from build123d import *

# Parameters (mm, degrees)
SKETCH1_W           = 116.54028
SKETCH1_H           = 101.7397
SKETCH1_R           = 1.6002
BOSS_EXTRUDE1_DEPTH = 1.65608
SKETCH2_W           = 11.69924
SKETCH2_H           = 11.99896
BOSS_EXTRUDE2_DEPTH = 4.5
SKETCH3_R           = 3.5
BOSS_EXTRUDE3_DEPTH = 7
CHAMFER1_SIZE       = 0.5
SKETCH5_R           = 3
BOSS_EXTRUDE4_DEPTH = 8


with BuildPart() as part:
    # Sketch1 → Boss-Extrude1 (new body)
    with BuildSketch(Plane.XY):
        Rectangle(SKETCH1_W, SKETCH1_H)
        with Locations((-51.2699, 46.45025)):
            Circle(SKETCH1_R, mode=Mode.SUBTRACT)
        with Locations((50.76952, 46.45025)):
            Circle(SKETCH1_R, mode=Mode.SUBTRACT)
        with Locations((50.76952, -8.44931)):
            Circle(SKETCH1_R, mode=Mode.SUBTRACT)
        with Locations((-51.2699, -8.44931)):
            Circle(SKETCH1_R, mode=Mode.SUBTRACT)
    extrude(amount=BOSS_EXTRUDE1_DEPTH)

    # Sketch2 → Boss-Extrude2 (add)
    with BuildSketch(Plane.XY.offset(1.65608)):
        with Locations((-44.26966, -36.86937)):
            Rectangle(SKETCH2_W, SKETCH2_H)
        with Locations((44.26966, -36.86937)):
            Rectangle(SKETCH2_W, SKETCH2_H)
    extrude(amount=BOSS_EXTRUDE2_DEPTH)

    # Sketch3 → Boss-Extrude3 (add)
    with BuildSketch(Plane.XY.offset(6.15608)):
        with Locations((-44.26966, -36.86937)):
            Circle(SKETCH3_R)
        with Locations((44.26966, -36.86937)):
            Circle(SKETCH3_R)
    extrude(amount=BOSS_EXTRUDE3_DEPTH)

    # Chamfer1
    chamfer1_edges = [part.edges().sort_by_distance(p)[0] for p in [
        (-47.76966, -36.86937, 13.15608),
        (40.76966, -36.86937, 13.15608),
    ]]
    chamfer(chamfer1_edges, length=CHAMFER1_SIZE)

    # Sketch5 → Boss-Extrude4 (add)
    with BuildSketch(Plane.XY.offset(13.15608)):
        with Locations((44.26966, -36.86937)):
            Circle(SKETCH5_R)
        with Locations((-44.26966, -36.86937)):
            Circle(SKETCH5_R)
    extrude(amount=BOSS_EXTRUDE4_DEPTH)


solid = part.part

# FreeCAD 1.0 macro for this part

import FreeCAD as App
import Part
import Sketcher


def edges_at(feature, points):
    """Names of the edges that pass closest to the given points."""
    edges = feature.Shape.Edges
    near = lambda p: min(range(len(edges)), key=lambda i: edges[i].distToShape(Part.Vertex(*p))[0])
    return sorted({f"Edge{near(p) + 1}" for p in points})

doc = App.newDocument("Part")
params = doc.addObject("Spreadsheet::Sheet", "Params")
for row, (alias, value) in enumerate([
    ("pad1_length", "1.65608 mm"),
    ("pad2_length", "4.5 mm"),
    ("sketch3_diameter", "7 mm"),
    ("pad3_length", "7 mm"),
    ("chamfer_size", "0.5 mm"),
    ("sketch4_diameter", "6 mm"),
    ("pad4_length", "8 mm"),
], start=1):
    params.set(f"A{row}", alias)
    params.set(f"B{row}", "=" + value)
    params.setAlias(f"B{row}", alias)

body = doc.addObject("PartDesign::Body", "Body")

sketch1 = doc.addObject("Sketcher::SketchObject", "Sketch")
body.addObject(sketch1)
sketch1.AttachmentSupport = (doc.XY_Plane, [""])
sketch1.MapMode = "FlatFace"
sketch1.addGeometry([
    Part.LineSegment(App.Vector(-58.27014, 50.86985, 0), App.Vector(-58.27014, -50.86985, 0)),
    Part.LineSegment(App.Vector(-58.27014, -50.86985, 0), App.Vector(58.27014, -50.86985, 0)),
    Part.LineSegment(App.Vector(58.27014, -50.86985, 0), App.Vector(58.27014, 50.86985, 0)),
    Part.LineSegment(App.Vector(58.27014, 50.86985, 0), App.Vector(-58.27014, 50.86985, 0)),
    Part.Circle(App.Vector(-51.2699, -8.44931, 0), App.Vector(0, 0, 1), 1.6002),
    Part.Circle(App.Vector(50.76952, -8.44931, 0), App.Vector(0, 0, 1), 1.6002),
    Part.Circle(App.Vector(-51.2699, 46.45025, 0), App.Vector(0, 0, 1), 1.6002),
    Part.Circle(App.Vector(50.76952, 46.45025, 0), App.Vector(0, 0, 1), 1.6002),
], False)
sketch1.addConstraint([
    Sketcher.Constraint("Coincident", 0, 2, 1, 1),
    Sketcher.Constraint("Coincident", 1, 2, 2, 1),
    Sketcher.Constraint("Coincident", 2, 2, 3, 1),
    Sketcher.Constraint("Coincident", 3, 2, 0, 1),
    Sketcher.Constraint("Vertical", 0),
    Sketcher.Constraint("Horizontal", 1),
    Sketcher.Constraint("Vertical", 2),
    Sketcher.Constraint("Horizontal", 3),
    Sketcher.Constraint("Equal", 4, 5),
    Sketcher.Constraint("Equal", 5, 6),
    Sketcher.Constraint("Equal", 6, 7),
    Sketcher.Constraint("Symmetric", 0, 2, 2, 2, -1, 1),
    Sketcher.Constraint("Horizontal", 4, 3, 5, 3),
    Sketcher.Constraint("Horizontal", 6, 3, 7, 3),
    Sketcher.Constraint("Vertical", 4, 3, 6, 3),
    Sketcher.Constraint("Vertical", 5, 3, 7, 3),
    Sketcher.Constraint("Diameter", 4, 3.2004),
    Sketcher.Constraint("DistanceY", 0, 2, 0, 1, 101.7397),
    Sketcher.Constraint("DistanceX", 1, 1, 1, 2, 116.54028),
    Sketcher.Constraint("DistanceX", 4, 3, -1, 1, 51.2699),
    Sketcher.Constraint("DistanceY", 0, 2, 6, 3, 97.3201),
    Sketcher.Constraint("DistanceY", 4, 3, -1, 1, 8.44931),
    Sketcher.Constraint("DistanceX", -1, 1, 5, 3, 50.76952),
])
pad1 = doc.addObject("PartDesign::Pad", "Pad")
body.addObject(pad1)
pad1.Profile = sketch1
pad1.setExpression("Length", "Params.pad1_length")

sketch2 = doc.addObject("Sketcher::SketchObject", "Sketch001")
body.addObject(sketch2)
sketch2.AttachmentSupport = (doc.XY_Plane, [""])
sketch2.MapMode = "FlatFace"
sketch2.AttachmentOffset = App.Placement(App.Vector(0, 0, 1.65608), App.Rotation())
sketch2.addGeometry([
    Part.LineSegment(App.Vector(-50.11928, -30.86989, 0), App.Vector(-50.11928, -42.86885, 0)),
    Part.LineSegment(App.Vector(-50.11928, -42.86885, 0), App.Vector(-38.42004, -42.86885, 0)),
    Part.LineSegment(App.Vector(-38.42004, -42.86885, 0), App.Vector(-38.42004, -30.86989, 0)),
    Part.LineSegment(App.Vector(-38.42004, -30.86989, 0), App.Vector(-50.11928, -30.86989, 0)),
    Part.LineSegment(App.Vector(38.42004, -30.86989, 0), App.Vector(38.42004, -42.86885, 0)),
    Part.LineSegment(App.Vector(38.42004, -42.86885, 0), App.Vector(50.11928, -42.86885, 0)),
    Part.LineSegment(App.Vector(50.11928, -42.86885, 0), App.Vector(50.11928, -30.86989, 0)),
    Part.LineSegment(App.Vector(50.11928, -30.86989, 0), App.Vector(38.42004, -30.86989, 0)),
], False)
sketch2.addConstraint([
    Sketcher.Constraint("Coincident", 0, 2, 1, 1),
    Sketcher.Constraint("Coincident", 1, 2, 2, 1),
    Sketcher.Constraint("Coincident", 2, 2, 3, 1),
    Sketcher.Constraint("Coincident", 3, 2, 0, 1),
    Sketcher.Constraint("Coincident", 4, 2, 5, 1),
    Sketcher.Constraint("Coincident", 5, 2, 6, 1),
    Sketcher.Constraint("Coincident", 6, 2, 7, 1),
    Sketcher.Constraint("Coincident", 7, 2, 4, 1),
    Sketcher.Constraint("Vertical", 0),
    Sketcher.Constraint("Horizontal", 1),
    Sketcher.Constraint("Vertical", 2),
    Sketcher.Constraint("Horizontal", 3),
    Sketcher.Constraint("Vertical", 4),
    Sketcher.Constraint("Horizontal", 5),
    Sketcher.Constraint("Vertical", 6),
    Sketcher.Constraint("Horizontal", 7),
    Sketcher.Constraint("Symmetric", 1, 2, 4, 2, -2),
    Sketcher.Constraint("Symmetric", 3, 2, 6, 2, -2),
    Sketcher.Constraint("DistanceX", 1, 1, 1, 2, 11.69924),
    Sketcher.Constraint("DistanceY", 0, 2, 0, 1, 11.99896),
    Sketcher.Constraint("DistanceX", 0, 2, -1, 1, 50.11928),
    Sketcher.Constraint("DistanceY", 0, 2, -1, 1, 42.86885),
])
pad2 = doc.addObject("PartDesign::Pad", "Pad001")
body.addObject(pad2)
pad2.Profile = sketch2
pad2.setExpression("Length", "Params.pad2_length")

sketch3 = doc.addObject("Sketcher::SketchObject", "Sketch002")
body.addObject(sketch3)
sketch3.AttachmentSupport = (doc.XY_Plane, [""])
sketch3.MapMode = "FlatFace"
sketch3.AttachmentOffset = App.Placement(App.Vector(0, 0, 6.15608), App.Rotation())
sketch3.addGeometry([
    Part.Circle(App.Vector(-44.26966, -36.86937, 0), App.Vector(0, 0, 1), 3.5),
    Part.Circle(App.Vector(44.26966, -36.86937, 0), App.Vector(0, 0, 1), 3.5),
], False)
sketch3.addConstraint([
    Sketcher.Constraint("Equal", 0, 1),
    Sketcher.Constraint("Symmetric", 0, 3, 1, 3, -2),
    Sketcher.Constraint("Diameter", 0, 7.0),
    Sketcher.Constraint("DistanceX", 0, 3, -1, 1, 44.26966),
    Sketcher.Constraint("DistanceY", 0, 3, -1, 1, 36.86937),
])
sketch3.setExpression("Constraints[2]", "Params.sketch3_diameter")
pad3 = doc.addObject("PartDesign::Pad", "Pad002")
body.addObject(pad3)
pad3.Profile = sketch3
pad3.setExpression("Length", "Params.pad3_length")
doc.recompute()

chamfer = doc.addObject("PartDesign::Chamfer", "Chamfer")
body.addObject(chamfer)
chamfer.Base = (pad3, edges_at(pad3, [(-47.77, -36.869, 13.156), (40.77, -36.869, 13.156)]))
chamfer.setExpression("Size", "Params.chamfer_size")

sketch4 = doc.addObject("Sketcher::SketchObject", "Sketch003")
body.addObject(sketch4)
sketch4.AttachmentSupport = (doc.XY_Plane, [""])
sketch4.MapMode = "FlatFace"
sketch4.AttachmentOffset = App.Placement(App.Vector(0, 0, 13.15608), App.Rotation())
sketch4.addGeometry([
    Part.Circle(App.Vector(44.26966, -36.86937, 0), App.Vector(0, 0, 1), 3),
    Part.Circle(App.Vector(-44.26966, -36.86937, 0), App.Vector(0, 0, 1), 3),
], False)
sketch4.addConstraint([
    Sketcher.Constraint("Equal", 0, 1),
    Sketcher.Constraint("Symmetric", 0, 3, 1, 3, -2),
    Sketcher.Constraint("Diameter", 0, 6.0),
    Sketcher.Constraint("DistanceX", -1, 1, 0, 3, 44.26966),
    Sketcher.Constraint("DistanceY", 0, 3, -1, 1, 36.86937),
])
sketch4.setExpression("Constraints[2]", "Params.sketch4_diameter")
pad4 = doc.addObject("PartDesign::Pad", "Pad003")
body.addObject(pad4)
pad4.Profile = sketch4
pad4.setExpression("Length", "Params.pad4_length")

doc.recompute()
